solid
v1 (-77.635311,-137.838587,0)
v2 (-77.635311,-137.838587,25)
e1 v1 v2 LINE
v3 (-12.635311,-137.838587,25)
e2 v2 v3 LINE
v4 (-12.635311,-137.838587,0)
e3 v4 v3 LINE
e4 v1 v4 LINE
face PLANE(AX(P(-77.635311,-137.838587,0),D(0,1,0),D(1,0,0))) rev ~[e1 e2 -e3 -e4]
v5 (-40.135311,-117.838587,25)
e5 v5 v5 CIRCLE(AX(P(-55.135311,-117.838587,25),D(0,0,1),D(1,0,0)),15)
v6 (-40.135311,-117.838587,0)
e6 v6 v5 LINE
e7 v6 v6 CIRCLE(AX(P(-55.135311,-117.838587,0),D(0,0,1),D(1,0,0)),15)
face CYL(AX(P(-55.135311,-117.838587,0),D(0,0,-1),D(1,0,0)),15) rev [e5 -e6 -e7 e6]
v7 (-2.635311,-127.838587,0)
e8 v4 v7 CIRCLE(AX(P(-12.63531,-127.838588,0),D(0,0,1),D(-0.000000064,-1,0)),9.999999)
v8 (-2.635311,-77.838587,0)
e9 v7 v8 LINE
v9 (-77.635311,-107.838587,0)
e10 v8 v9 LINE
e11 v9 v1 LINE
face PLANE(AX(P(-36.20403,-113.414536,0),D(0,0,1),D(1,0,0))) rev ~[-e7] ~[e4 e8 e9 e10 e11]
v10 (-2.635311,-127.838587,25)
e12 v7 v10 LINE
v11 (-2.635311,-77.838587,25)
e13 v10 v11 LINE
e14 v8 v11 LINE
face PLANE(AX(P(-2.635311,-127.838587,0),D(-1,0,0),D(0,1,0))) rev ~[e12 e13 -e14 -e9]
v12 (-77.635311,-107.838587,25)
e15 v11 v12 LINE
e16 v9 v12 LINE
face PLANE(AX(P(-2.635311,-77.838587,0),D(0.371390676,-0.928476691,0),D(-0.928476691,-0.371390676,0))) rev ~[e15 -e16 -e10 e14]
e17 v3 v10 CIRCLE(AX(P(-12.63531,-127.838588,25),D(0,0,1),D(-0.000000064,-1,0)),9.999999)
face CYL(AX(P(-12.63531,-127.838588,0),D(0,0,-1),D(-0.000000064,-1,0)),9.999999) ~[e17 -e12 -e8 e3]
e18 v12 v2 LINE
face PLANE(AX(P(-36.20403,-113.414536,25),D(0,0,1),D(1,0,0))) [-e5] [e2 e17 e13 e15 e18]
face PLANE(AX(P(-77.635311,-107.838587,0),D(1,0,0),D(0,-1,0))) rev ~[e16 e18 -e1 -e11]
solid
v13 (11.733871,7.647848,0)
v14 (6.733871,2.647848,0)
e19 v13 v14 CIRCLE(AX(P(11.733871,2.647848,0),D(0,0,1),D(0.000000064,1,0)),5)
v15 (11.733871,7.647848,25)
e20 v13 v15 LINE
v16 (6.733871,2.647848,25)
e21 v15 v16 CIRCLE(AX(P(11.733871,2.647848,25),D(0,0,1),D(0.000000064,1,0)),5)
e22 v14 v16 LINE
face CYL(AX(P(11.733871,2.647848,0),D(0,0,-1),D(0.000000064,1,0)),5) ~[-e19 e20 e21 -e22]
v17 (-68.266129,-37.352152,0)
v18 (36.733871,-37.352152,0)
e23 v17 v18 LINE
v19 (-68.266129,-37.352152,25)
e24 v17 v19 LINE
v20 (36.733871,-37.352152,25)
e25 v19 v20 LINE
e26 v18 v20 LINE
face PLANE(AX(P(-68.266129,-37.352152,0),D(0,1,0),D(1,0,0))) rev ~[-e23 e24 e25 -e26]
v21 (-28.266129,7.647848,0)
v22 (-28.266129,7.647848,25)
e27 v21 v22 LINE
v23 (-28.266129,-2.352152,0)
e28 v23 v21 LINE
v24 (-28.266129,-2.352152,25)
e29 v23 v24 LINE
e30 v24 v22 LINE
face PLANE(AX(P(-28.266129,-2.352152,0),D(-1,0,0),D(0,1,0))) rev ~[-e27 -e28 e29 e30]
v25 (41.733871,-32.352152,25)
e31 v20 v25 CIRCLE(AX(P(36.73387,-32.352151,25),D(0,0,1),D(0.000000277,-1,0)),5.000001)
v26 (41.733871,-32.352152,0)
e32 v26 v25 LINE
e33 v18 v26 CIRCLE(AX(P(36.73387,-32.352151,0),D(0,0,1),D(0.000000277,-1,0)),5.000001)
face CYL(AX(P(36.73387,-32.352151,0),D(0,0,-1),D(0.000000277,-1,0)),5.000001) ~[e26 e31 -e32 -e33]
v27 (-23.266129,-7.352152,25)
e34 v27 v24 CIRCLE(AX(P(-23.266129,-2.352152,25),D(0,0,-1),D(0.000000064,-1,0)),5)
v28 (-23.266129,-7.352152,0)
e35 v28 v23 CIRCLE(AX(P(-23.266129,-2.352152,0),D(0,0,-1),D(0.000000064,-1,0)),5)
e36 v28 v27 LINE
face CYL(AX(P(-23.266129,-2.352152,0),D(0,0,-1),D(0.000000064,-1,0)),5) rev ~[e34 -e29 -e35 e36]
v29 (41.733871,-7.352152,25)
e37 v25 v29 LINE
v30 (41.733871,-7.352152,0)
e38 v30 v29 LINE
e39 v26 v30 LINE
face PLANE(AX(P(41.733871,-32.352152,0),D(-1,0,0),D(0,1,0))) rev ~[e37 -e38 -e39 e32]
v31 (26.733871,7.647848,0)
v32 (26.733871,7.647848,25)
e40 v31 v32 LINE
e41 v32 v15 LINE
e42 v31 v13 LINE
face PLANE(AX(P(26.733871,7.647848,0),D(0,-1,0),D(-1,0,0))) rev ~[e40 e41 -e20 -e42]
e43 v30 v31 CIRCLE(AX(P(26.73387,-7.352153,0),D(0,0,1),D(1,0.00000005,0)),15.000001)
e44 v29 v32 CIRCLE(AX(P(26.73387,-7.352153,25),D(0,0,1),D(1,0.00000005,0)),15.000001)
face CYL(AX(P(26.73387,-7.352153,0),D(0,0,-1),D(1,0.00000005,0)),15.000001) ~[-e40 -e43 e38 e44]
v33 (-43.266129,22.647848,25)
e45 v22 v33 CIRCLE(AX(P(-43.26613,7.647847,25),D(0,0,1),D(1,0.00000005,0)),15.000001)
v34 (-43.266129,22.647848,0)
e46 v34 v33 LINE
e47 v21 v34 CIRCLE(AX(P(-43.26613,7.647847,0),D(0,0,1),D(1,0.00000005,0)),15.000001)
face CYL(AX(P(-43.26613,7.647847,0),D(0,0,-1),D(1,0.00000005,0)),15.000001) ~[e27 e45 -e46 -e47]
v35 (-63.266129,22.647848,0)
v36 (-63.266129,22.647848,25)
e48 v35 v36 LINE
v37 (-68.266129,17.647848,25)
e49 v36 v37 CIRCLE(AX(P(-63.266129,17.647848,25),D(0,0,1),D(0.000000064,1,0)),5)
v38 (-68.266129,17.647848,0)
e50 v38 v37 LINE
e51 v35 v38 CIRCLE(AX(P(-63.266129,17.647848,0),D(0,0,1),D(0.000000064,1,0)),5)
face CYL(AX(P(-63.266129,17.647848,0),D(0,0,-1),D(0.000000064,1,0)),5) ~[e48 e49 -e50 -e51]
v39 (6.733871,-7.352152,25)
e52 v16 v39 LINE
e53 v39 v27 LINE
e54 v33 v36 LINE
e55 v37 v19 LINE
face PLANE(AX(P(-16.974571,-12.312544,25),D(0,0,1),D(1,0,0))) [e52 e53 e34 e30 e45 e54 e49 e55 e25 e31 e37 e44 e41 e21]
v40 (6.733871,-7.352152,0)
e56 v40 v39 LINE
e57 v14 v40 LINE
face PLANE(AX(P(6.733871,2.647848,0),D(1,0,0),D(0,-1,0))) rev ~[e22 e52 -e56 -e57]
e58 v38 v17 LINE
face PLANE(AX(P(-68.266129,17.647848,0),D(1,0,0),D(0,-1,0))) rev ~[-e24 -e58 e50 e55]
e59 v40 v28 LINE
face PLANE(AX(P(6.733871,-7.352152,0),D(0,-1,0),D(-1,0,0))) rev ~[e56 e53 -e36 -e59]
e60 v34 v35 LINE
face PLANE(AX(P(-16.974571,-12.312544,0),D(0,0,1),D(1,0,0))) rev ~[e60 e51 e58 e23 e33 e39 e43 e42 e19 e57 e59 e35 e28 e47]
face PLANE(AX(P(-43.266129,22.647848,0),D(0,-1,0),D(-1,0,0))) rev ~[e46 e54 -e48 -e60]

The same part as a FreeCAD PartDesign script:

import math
import FreeCAD as App
import Part
import Sketcher

V = App.Vector

doc = App.newDocument("Part")
body = doc.addObject("PartDesign::Body", "Body")

sketch1 = doc.addObject("Sketcher::SketchObject", "Sketch")
body.addObject(sketch1)
sketch1.AttachmentSupport = (doc.XY_Plane, [""])
sketch1.MapMode = "FlatFace"
sketch1.addGeometry([
    Part.LineSegment(V(-68.266129, 17.647848, 0), V(-68.266129, -37.352152, 0)),
    Part.LineSegment(V(-68.266129, -37.352152, 0), V(36.733871, -37.352152, 0)),
    Part.ArcOfCircle(Part.Circle(V(36.73387, -32.352151, 0), V(0, 0, 1), 5.000001), math.radians(-89.999984), math.radians(-0.000016)),
    Part.LineSegment(V(41.733871, -32.352152, 0), V(41.733871, -7.352152, 0)),
    Part.ArcOfCircle(Part.Circle(V(26.73387, -7.352153, 0), V(0, 0, 1), 15.000001), math.radians(0.000003), math.radians(89.999997)),
    Part.LineSegment(V(26.733871, 7.647848, 0), V(11.733871, 7.647848, 0)),
    Part.ArcOfCircle(Part.Circle(V(11.733871, 2.647848, 0), V(0, 0, 1), 5), math.radians(89.999996), math.radians(180.000004)),
    Part.LineSegment(V(6.733871, 2.647848, 0), V(6.733871, -7.352152, 0)),
    Part.LineSegment(V(6.733871, -7.352152, 0), V(-23.266129, -7.352152, 0)),
    Part.ArcOfCircle(Part.Circle(V(-23.266129, -2.352152, 0), V(0, 0, 1), 5), math.radians(179.999996), math.radians(270.000004)),
    Part.LineSegment(V(-28.266129, -2.352152, 0), V(-28.266129, 7.647848, 0)),
    Part.ArcOfCircle(Part.Circle(V(-43.26613, 7.647847, 0), V(0, 0, 1), 15.000001), math.radians(0.000003), math.radians(89.999997)),
    Part.LineSegment(V(-43.266129, 22.647848, 0), V(-63.266129, 22.647848, 0)),
    Part.ArcOfCircle(Part.Circle(V(-63.266129, 17.647848, 0), V(0, 0, 1), 5), math.radians(89.999996), math.radians(180.000004)),
], False)
sketch1.addConstraint([
    Sketcher.Constraint("Coincident", 0, 2, 1, 1),
    Sketcher.Constraint("Tangent", 1, 2, 2, 1),
    Sketcher.Constraint("Tangent", 2, 2, 3, 1),
    Sketcher.Constraint("Tangent", 3, 2, 4, 1),
    Sketcher.Constraint("Tangent", 4, 2, 5, 1),
    Sketcher.Constraint("Tangent", 5, 2, 6, 1),
    Sketcher.Constraint("Tangent", 6, 2, 7, 1),
    Sketcher.Constraint("Coincident", 7, 2, 8, 1),
    Sketcher.Constraint("Tangent", 8, 2, 9, 2),
    Sketcher.Constraint("Tangent", 9, 1, 10, 1),
    Sketcher.Constraint("Tangent", 10, 2, 11, 1),
    Sketcher.Constraint("Tangent", 11, 2, 12, 1),
    Sketcher.Constraint("Tangent", 12, 2, 13, 1),
    Sketcher.Constraint("Tangent", 13, 2, 0, 1),
    Sketcher.Constraint("Vertical", 0),
    Sketcher.Constraint("Horizontal", 1),
    Sketcher.Constraint("Vertical", 3),
    Sketcher.Constraint("Horizontal", 5),
    Sketcher.Constraint("Vertical", 7),
    Sketcher.Constraint("Horizontal", 8),
    Sketcher.Constraint("Vertical", 10),
    Sketcher.Constraint("Horizontal", 12),
    Sketcher.Constraint("Equal", 2, 6),
    Sketcher.Constraint("Equal", 6, 9),
    Sketcher.Constraint("Equal", 4, 11),
    Sketcher.Constraint("Equal", 9, 13),
    Sketcher.Constraint("Horizontal", 11, 3, 4, 2),
    Sketcher.Constraint("Horizontal", 3, 2, 7, 2),
    Sketcher.Constraint("Radius", 2, 5.000001),
    Sketcher.Constraint("Radius", 4, 15.000001),
    Sketcher.Constraint("DistanceX", 1, 1, 1, 2, 105.0),
    Sketcher.Constraint("DistanceX", 5, 2, 5, 1, 15.0),
    Sketcher.Constraint("DistanceX", 8, 2, 8, 1, 30.0),
    Sketcher.Constraint("DistanceY", 0, 2, 0, 1, 55.0),
    Sketcher.Constraint("DistanceX", -1, 1, 2, 3, 36.73387),
    Sketcher.Constraint("DistanceY", 2, 3, -1, 1, 32.352151),
])
pad1 = doc.addObject("PartDesign::Pad", "Pad")
body.addObject(pad1)
pad1.Profile = sketch1
pad1.Length = 25
body2 = doc.addObject("PartDesign::Body", "Body001")

sketch2 = doc.addObject("Sketcher::SketchObject", "Sketch001")
body2.addObject(sketch2)
sketch2.AttachmentSupport = (doc.getObject("XY_Plane001"), [""])
sketch2.MapMode = "FlatFace"
sketch2.addGeometry([
    Part.LineSegment(V(-77.635311, -107.838587, 0), V(-77.635311, -137.838587, 0)),
    Part.LineSegment(V(-77.635311, -137.838587, 0), V(-12.635311, -137.838587, 0)),
    Part.ArcOfCircle(Part.Circle(V(-12.63531, -127.838588, 0), V(0, 0, 1), 9.999999), math.radians(-90.000004), math.radians(0.000004)),
    Part.LineSegment(V(-2.635311, -127.838587, 0), V(-2.635311, -77.838587, 0)),
    Part.LineSegment(V(-2.635311, -77.838587, 0), V(-77.635311, -107.838587, 0)),
    Part.Circle(V(-55.135311, -117.838587, 0), V(0, 0, 1), 15),
], False)
sketch2.addConstraint([
    Sketcher.Constraint("Coincident", 0, 2, 1, 1),
    Sketcher.Constraint("Tangent", 1, 2, 2, 1),
    Sketcher.Constraint("Tangent", 2, 2, 3, 1),
    Sketcher.Constraint("Coincident", 3, 2, 4, 1),
    Sketcher.Constraint("Coincident", 4, 2, 0, 1),
    Sketcher.Constraint("Vertical", 0),
    Sketcher.Constraint("Horizontal", 1),
    Sketcher.Constraint("Vertical", 3),
    Sketcher.Constraint("Diameter", 5, 30.0),
    Sketcher.Constraint("Radius", 2, 9.999999),
    Sketcher.Constraint("DistanceX", 1, 1, 1, 2, 65.0),
    Sketcher.Constraint("DistanceY", 0, 2, 0, 1, 30.0),
    Sketcher.Constraint("DistanceY", 3, 1, 3, 2, 50.0),
    Sketcher.Constraint("DistanceY", 2, 3, 5, 3, 10.000001),
    Sketcher.Constraint("DistanceX", 5, 3, 2, 3, 42.500001),
    Sketcher.Constraint("DistanceX", 2, 3, -1, 1, 12.63531),
    Sketcher.Constraint("DistanceY", 2, 3, -1, 1, 127.838588),
])
pad2 = doc.addObject("PartDesign::Pad", "Pad001")
body2.addObject(pad2)
pad2.Profile = sketch2
pad2.Length = 25

doc.recompute()
